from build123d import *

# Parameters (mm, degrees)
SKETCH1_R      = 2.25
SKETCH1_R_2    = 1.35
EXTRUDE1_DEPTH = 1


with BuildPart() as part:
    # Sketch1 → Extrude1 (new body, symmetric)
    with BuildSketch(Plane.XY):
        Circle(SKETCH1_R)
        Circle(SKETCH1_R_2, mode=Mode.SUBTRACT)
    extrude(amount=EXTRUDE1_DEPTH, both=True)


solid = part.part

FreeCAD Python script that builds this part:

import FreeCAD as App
import Part
import Sketcher
from FreeCAD import Vector
Q = App.Units.Quantity

doc = App.newDocument("Part")
body = doc.addObject("PartDesign::Body", "Body")

# Sketch on XY plane
sketch1 = body.newObject("Sketcher::SketchObject", "Sketch")
sketch1.AttachmentSupport = (doc.getObject("XY_Plane"), [""])
sketch1.MapMode = "FlatFace"
sketch1.addGeometry(Part.Circle(Vector(0, 0, 0), Vector(0, 0, 1), 2.2), False)
sketch1.addGeometry(Part.Circle(Vector(0, 0, 0), Vector(0, 0, 1), 1.4), False)
sketch1.addConstraint(Sketcher.Constraint("Coincident", 0, 3, -1, 1))
sketch1.addConstraint(Sketcher.Constraint("Coincident", 1, 3, -1, 1))
sketch1.addConstraint(Sketcher.Constraint("Diameter", 0, Q("4.5 mm")))
sketch1.addConstraint(Sketcher.Constraint("Diameter", 1, Q("2.7 mm")))
pad1 = body.newObject("PartDesign::Pad", "Pad")
pad1.Profile = sketch1
pad1.Length = 2
pad1.Midplane = True

doc.recompute()
